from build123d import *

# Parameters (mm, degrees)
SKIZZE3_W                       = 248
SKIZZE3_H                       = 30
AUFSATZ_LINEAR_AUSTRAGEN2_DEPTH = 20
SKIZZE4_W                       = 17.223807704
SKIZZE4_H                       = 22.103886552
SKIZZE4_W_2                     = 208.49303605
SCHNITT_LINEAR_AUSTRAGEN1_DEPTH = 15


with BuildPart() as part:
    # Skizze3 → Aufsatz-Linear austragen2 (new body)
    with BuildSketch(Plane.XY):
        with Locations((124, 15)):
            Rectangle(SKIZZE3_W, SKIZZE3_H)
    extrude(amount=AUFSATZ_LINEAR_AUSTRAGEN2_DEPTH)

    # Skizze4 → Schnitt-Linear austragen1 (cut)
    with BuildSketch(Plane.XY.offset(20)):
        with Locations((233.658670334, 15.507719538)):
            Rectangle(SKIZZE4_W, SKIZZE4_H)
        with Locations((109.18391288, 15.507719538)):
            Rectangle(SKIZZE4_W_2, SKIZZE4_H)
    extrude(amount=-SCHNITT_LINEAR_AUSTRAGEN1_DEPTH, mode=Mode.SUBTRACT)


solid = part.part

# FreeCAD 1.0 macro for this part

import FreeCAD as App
import Part
import Sketcher

doc = App.newDocument("Part")
body = doc.addObject("PartDesign::Body", "Body")

# Sketch on XY plane
sketch1 = body.newObject("Sketcher::SketchObject", "Sketch")
sketch1.AttachmentSupport = (doc.getObject("XY_Plane"), [""])
sketch1.MapMode = "FlatFace"
sketch1.addGeometry([
    Part.LineSegment(App.Vector(0, 30, 0), App.Vector(0, 0, 0)),
    Part.LineSegment(App.Vector(0, 0, 0), App.Vector(248, 0, 0)),
    Part.LineSegment(App.Vector(248, 0, 0), App.Vector(248, 30, 0)),
    Part.LineSegment(App.Vector(248, 30, 0), App.Vector(0, 30, 0)),
], False)
sketch1.addConstraint([
    Sketcher.Constraint("Coincident", 0, 2, 1, 1),
    Sketcher.Constraint("Coincident", 1, 2, 2, 1),
    Sketcher.Constraint("Coincident", 2, 2, 3, 1),
    Sketcher.Constraint("Coincident", 3, 2, 0, 1),
    Sketcher.Constraint("Vertical", 0),
    Sketcher.Constraint("Horizontal", 1),
    Sketcher.Constraint("Vertical", 2),
    Sketcher.Constraint("Horizontal", 3),
    Sketcher.Constraint("Coincident", 0, 2, -1, 1),
    Sketcher.Constraint("DistanceX", 1, 1, 1, 2, 248.0),
    Sketcher.Constraint("DistanceY", 0, 2, 0, 1, 30.0),
])
pad1 = body.newObject("PartDesign::Pad", "Pad")
pad1.Profile = sketch1
pad1.Length = 20

# Sketch on XY plane
sketch2 = body.newObject("Sketcher::SketchObject", "Sketch001")
sketch2.AttachmentSupport = (doc.getObject("XY_Plane"), [""])
sketch2.MapMode = "FlatFace"
sketch2.AttachmentOffset = App.Placement(App.Vector(0, 0, 20), App.Rotation())
sketch2.addGeometry([
    Part.LineSegment(App.Vector(225, 27, 0), App.Vector(225, 4, 0)),  # 0
    Part.LineSegment(App.Vector(225, 4, 0), App.Vector(242, 4, 0)),  # 1
    Part.LineSegment(App.Vector(242, 4, 0), App.Vector(242, 27, 0)),  # 2
    Part.LineSegment(App.Vector(242, 27, 0), App.Vector(225, 27, 0)),  # 3
    Part.LineSegment(App.Vector(5, 27, 0), App.Vector(5, 4, 0)),  # 4
    Part.LineSegment(App.Vector(5, 4, 0), App.Vector(213, 4, 0)),  # 5
    Part.LineSegment(App.Vector(213, 4, 0), App.Vector(213, 27, 0)),  # 6
    Part.LineSegment(App.Vector(213, 27, 0), App.Vector(5, 27, 0)),  # 7
], False)
sketch2.addConstraint([
    Sketcher.Constraint("Coincident", 0, 2, 1, 1),
    Sketcher.Constraint("Coincident", 1, 2, 2, 1),
    Sketcher.Constraint("Coincident", 2, 2, 3, 1),
    Sketcher.Constraint("Coincident", 3, 2, 0, 1),
    Sketcher.Constraint("Coincident", 4, 2, 5, 1),
    Sketcher.Constraint("Coincident", 5, 2, 6, 1),
    Sketcher.Constraint("Coincident", 6, 2, 7, 1),
    Sketcher.Constraint("Coincident", 7, 2, 4, 1),
    Sketcher.Constraint("Vertical", 0),
    Sketcher.Constraint("Horizontal", 1),
    Sketcher.Constraint("Vertical", 2),
    Sketcher.Constraint("Horizontal", 3),
    Sketcher.Constraint("Vertical", 4),
    Sketcher.Constraint("Horizontal", 5),
    Sketcher.Constraint("Vertical", 6),
    Sketcher.Constraint("Horizontal", 7),
    Sketcher.Constraint("Horizontal", 1, 2, 4, 2),
    Sketcher.Constraint("Horizontal", 3, 2, 6, 2),
    Sketcher.Constraint("DistanceX", 1, 1, 1, 2, 17.223808),
    Sketcher.Constraint("DistanceX", 5, 1, 5, 2, 208.493036),
    Sketcher.Constraint("DistanceY", 0, 2, 0, 1, 22.103887),
    Sketcher.Constraint("DistanceX", -1, 1, 5, 2, 213.430431),
    Sketcher.Constraint("DistanceX", 4, 2, 0, 2, 220.109372),
    Sketcher.Constraint("DistanceY", -1, 1, 0, 2, 4.455776),
])
pocket1 = body.newObject("PartDesign::Pocket", "Pocket")
pocket1.Profile = sketch2
pocket1.Length = 15

doc.recompute()
